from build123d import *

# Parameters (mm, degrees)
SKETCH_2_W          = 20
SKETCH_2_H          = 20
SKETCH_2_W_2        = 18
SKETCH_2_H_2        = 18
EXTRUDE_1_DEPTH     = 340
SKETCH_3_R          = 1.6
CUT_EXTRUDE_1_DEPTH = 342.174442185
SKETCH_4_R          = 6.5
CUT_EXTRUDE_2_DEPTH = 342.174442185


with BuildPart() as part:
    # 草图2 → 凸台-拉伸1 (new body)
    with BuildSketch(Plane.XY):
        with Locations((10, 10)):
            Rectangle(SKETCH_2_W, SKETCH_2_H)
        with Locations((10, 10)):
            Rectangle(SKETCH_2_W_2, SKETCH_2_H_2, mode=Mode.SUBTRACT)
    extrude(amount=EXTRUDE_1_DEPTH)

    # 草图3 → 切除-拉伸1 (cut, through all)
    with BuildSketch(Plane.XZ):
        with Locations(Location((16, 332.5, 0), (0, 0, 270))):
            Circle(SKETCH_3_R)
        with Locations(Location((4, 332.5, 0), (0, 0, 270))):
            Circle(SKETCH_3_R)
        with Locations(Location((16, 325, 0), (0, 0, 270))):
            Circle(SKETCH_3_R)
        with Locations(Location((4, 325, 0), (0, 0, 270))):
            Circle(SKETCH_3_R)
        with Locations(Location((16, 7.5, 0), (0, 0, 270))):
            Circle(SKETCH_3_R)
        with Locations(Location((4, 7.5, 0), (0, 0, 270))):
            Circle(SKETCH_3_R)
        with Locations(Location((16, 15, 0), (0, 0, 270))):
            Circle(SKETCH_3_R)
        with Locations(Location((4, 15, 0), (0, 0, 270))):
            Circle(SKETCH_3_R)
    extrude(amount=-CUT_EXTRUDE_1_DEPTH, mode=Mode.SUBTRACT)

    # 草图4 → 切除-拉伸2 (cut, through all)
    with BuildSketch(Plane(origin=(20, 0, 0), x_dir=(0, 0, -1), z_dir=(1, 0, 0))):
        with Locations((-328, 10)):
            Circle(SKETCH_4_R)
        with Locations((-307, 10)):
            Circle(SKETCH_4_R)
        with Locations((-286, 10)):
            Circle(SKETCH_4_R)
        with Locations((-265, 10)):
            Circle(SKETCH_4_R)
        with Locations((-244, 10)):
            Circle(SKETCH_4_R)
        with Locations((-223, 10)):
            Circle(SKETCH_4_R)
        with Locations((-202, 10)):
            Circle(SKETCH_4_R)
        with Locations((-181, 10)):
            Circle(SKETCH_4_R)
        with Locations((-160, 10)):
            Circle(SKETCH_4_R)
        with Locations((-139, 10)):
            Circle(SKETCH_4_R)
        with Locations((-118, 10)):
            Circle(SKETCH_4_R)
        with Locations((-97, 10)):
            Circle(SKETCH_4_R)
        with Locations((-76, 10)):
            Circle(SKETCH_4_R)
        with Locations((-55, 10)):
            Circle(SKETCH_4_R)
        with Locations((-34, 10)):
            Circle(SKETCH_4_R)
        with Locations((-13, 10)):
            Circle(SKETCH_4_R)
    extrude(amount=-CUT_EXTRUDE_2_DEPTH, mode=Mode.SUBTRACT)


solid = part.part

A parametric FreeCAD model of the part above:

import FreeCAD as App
import Part
import Sketcher

V = App.Vector
Q = App.Units.Quantity


def add_polygon(sketch, points):
    """Adds a closed chain of lines whose ends are joined by coincident constraints."""
    first, n = sketch.GeometryCount, len(points)
    for a, b in zip(points, points[1:] + points[:1]):
        sketch.addGeometry(Part.LineSegment(App.Vector(*a, 0), App.Vector(*b, 0)), False)
    for i in range(n):
        sketch.addConstraint(Sketcher.Constraint("Coincident", first + i, 2, first + (i + 1) % n, 1))

doc = App.newDocument("Part")
body = doc.addObject("PartDesign::Body", "Body")

sketch1 = doc.addObject("Sketcher::SketchObject", "Sketch")
body.addObject(sketch1)
sketch1.AttachmentSupport = (doc.XY_Plane, [""])
sketch1.MapMode = "FlatFace"
add_polygon(sketch1, [(0, 20), (0, 0), (20, 0), (20, 20)])
add_polygon(sketch1, [(19, 1), (1, 1), (1, 19), (19, 19)])
sketch1.addConstraint([
    Sketcher.Constraint("Vertical", 0),
    Sketcher.Constraint("Horizontal", 1),
    Sketcher.Constraint("Vertical", 2),
    Sketcher.Constraint("Horizontal", 3),
    Sketcher.Constraint("Horizontal", 4),
    Sketcher.Constraint("Vertical", 5),
    Sketcher.Constraint("Horizontal", 6),
    Sketcher.Constraint("Vertical", 7),
    Sketcher.Constraint("Coincident", 0, 2, -1, 1),
    Sketcher.Constraint("Equal", 3, 0),
    Sketcher.Constraint("Equal", 6, 5),
    Sketcher.Constraint("DistanceX", 1, 1, 1, 2, Q("20 mm")),
    Sketcher.Constraint("DistanceX", 4, 2, 4, 1, Q("18 mm")),
    Sketcher.Constraint("DistanceX", -1, 1, 4, 2, Q("1 mm")),
    Sketcher.Constraint("DistanceY", -1, 1, 4, 2, Q("1 mm")),
])
pad1 = doc.addObject("PartDesign::Pad", "Pad")
body.addObject(pad1)
pad1.Profile = sketch1
pad1.Length = 340

sketch2 = doc.addObject("Sketcher::SketchObject", "Sketch001")
body.addObject(sketch2)
sketch2.AttachmentSupport = (doc.XZ_Plane, [""])
sketch2.MapMode = "FlatFace"
sketch2.addGeometry([
    Part.Circle(V(16, 332.5, 0), V(0, 0, 1), 1.6),
    Part.Circle(V(4, 332.5, 0), V(0, 0, 1), 1.6),
    Part.Circle(V(16, 325, 0), V(0, 0, 1), 1.6),
    Part.Circle(V(4, 325, 0), V(0, 0, 1), 1.6),
    Part.Circle(V(16, 7.5, 0), V(0, 0, 1), 1.6),
    Part.Circle(V(4, 7.5, 0), V(0, 0, 1), 1.6),
    Part.Circle(V(16, 15, 0), V(0, 0, 1), 1.6),
    Part.Circle(V(4, 15, 0), V(0, 0, 1), 1.6),
], False)
sketch2.addConstraint([
    Sketcher.Constraint("Equal", 0, 1),
    Sketcher.Constraint("Equal", 1, 2),
    Sketcher.Constraint("Equal", 2, 3),
    Sketcher.Constraint("Equal", 3, 4),
    Sketcher.Constraint("Equal", 4, 5),
    Sketcher.Constraint("Equal", 5, 6),
    Sketcher.Constraint("Equal", 6, 7),
    Sketcher.Constraint("Horizontal", 0, 3, 1, 3),
    Sketcher.Constraint("Horizontal", 2, 3, 3, 3),
    Sketcher.Constraint("Horizontal", 4, 3, 5, 3),
    Sketcher.Constraint("Horizontal", 6, 3, 7, 3),
    Sketcher.Constraint("Vertical", 0, 3, 2, 3),
    Sketcher.Constraint("Vertical", 1, 3, 3, 3),
    Sketcher.Constraint("Vertical", 2, 3, 4, 3),
    Sketcher.Constraint("Vertical", 3, 3, 5, 3),
    Sketcher.Constraint("Vertical", 4, 3, 6, 3),
    Sketcher.Constraint("Vertical", 5, 3, 7, 3),
    Sketcher.Constraint("Diameter", 0, Q("3.2 mm")),
    Sketcher.Constraint("DistanceX", -1, 1, 0, 3, Q("16 mm")),
    Sketcher.Constraint("DistanceX", -1, 1, 1, 3, Q("4 mm")),
    Sketcher.Constraint("DistanceY", -1, 1, 2, 3, Q("325 mm")),
    Sketcher.Constraint("DistanceY", -1, 1, 6, 3, Q("15 mm")),
    Sketcher.Constraint("DistanceY", 4, 3, 0, 3, Q("325 mm")),
    Sketcher.Constraint("DistanceY", -1, 1, 0, 3, Q("332.5 mm")),
])
pocket1 = doc.addObject("PartDesign::Pocket", "Pocket")
body.addObject(pocket1)
pocket1.Profile = sketch2
pocket1.Type = "ThroughAll"

sketch3 = doc.addObject("Sketcher::SketchObject", "Sketch002")
body.addObject(sketch3)
sketch3.AttachmentSupport = (doc.YZ_Plane, [""])
sketch3.MapMode = "FlatFace"
sketch3.AttachmentOffset = App.Placement(V(0, 0, 20), App.Rotation())
sketch3.addGeometry([
    Part.Circle(V(10, 328, 0), V(0, 0, 1), 6.5),
    Part.Circle(V(10, 307, 0), V(0, 0, 1), 6.5),
    Part.Circle(V(10, 286, 0), V(0, 0, 1), 6.5),
    Part.Circle(V(10, 265, 0), V(0, 0, 1), 6.5),
    Part.Circle(V(10, 244, 0), V(0, 0, 1), 6.5),
    Part.Circle(V(10, 223, 0), V(0, 0, 1), 6.5),
    Part.Circle(V(10, 202, 0), V(0, 0, 1), 6.5),
    Part.Circle(V(10, 181, 0), V(0, 0, 1), 6.5),
    Part.Circle(V(10, 160, 0), V(0, 0, 1), 6.5),
    Part.Circle(V(10, 139, 0), V(0, 0, 1), 6.5),
    Part.Circle(V(10, 118, 0), V(0, 0, 1), 6.5),
    Part.Circle(V(10, 97, 0), V(0, 0, 1), 6.5),
    Part.Circle(V(10, 76, 0), V(0, 0, 1), 6.5),
    Part.Circle(V(10, 55, 0), V(0, 0, 1), 6.5),
    Part.Circle(V(10, 34, 0), V(0, 0, 1), 6.5),
    Part.Circle(V(10, 13, 0), V(0, 0, 1), 6.5),
], False)
sketch3.addConstraint([
    Sketcher.Constraint("Equal", 0, 1),
    Sketcher.Constraint("Equal", 1, 2),
    Sketcher.Constraint("Equal", 2, 3),
    Sketcher.Constraint("Equal", 3, 4),
    Sketcher.Constraint("Equal", 4, 5),
    Sketcher.Constraint("Equal", 5, 6),
    Sketcher.Constraint("Equal", 6, 7),
    Sketcher.Constraint("Equal", 7, 8),
    Sketcher.Constraint("Equal", 8, 9),
    Sketcher.Constraint("Equal", 9, 10),
    Sketcher.Constraint("Equal", 10, 11),
    Sketcher.Constraint("Equal", 11, 12),
    Sketcher.Constraint("Equal", 12, 13),
    Sketcher.Constraint("Equal", 13, 14),
    Sketcher.Constraint("Equal", 14, 15),
    Sketcher.Constraint("Vertical", 0, 3, 1, 3),
    Sketcher.Constraint("Vertical", 1, 3, 2, 3),
    Sketcher.Constraint("Vertical", 2, 3, 3, 3),
    Sketcher.Constraint("Vertical", 3, 3, 4, 3),
    Sketcher.Constraint("Vertical", 4, 3, 5, 3),
    Sketcher.Constraint("Vertical", 5, 3, 6, 3),
    Sketcher.Constraint("Vertical", 6, 3, 7, 3),
    Sketcher.Constraint("Vertical", 7, 3, 8, 3),
    Sketcher.Constraint("Vertical", 8, 3, 9, 3),
    Sketcher.Constraint("Vertical", 9, 3, 10, 3),
    Sketcher.Constraint("Vertical", 10, 3, 11, 3),
    Sketcher.Constraint("Vertical", 11, 3, 12, 3),
    Sketcher.Constraint("Vertical", 12, 3, 13, 3),
    Sketcher.Constraint("Vertical", 13, 3, 14, 3),
    Sketcher.Constraint("Vertical", 14, 3, 15, 3),
    Sketcher.Constraint("Diameter", 0, Q("13 mm")),
    Sketcher.Constraint("DistanceX", -1, 1, 0, 3, Q("10 mm")),
    Sketcher.Constraint("DistanceY", -1, 1, 0, 3, Q("328 mm")),
    Sketcher.Constraint("DistanceY", -1, 1, 1, 3, Q("307 mm")),
    Sketcher.Constraint("DistanceY", -1, 1, 2, 3, Q("286 mm")),
    Sketcher.Constraint("DistanceY", -1, 1, 3, 3, Q("265 mm")),
    Sketcher.Constraint("DistanceY", -1, 1, 4, 3, Q("244 mm")),
    Sketcher.Constraint("DistanceY", -1, 1, 5, 3, Q("223 mm")),
    Sketcher.Constraint("DistanceY", -1, 1, 6, 3, Q("202 mm")),
    Sketcher.Constraint("DistanceY", -1, 1, 7, 3, Q("181 mm")),
    Sketcher.Constraint("DistanceY", -1, 1, 8, 3, Q("160 mm")),
    Sketcher.Constraint("DistanceY", -1, 1, 9, 3, Q("139 mm")),
    Sketcher.Constraint("DistanceY", -1, 1, 10, 3, Q("118 mm")),
    Sketcher.Constraint("DistanceY", -1, 1, 11, 3, Q("97 mm")),
    Sketcher.Constraint("DistanceY", -1, 1, 12, 3, Q("76 mm")),
    Sketcher.Constraint("DistanceY", -1, 1, 13, 3, Q("55 mm")),
    Sketcher.Constraint("DistanceY", -1, 1, 14, 3, Q("34 mm")),
    Sketcher.Constraint("DistanceY", -1, 1, 15, 3, Q("13 mm")),
])
pocket2 = doc.addObject("PartDesign::Pocket", "Pocket001")
body.addObject(pocket2)
pocket2.Profile = sketch3
pocket2.Type = "ThroughAll"

doc.recompute()
